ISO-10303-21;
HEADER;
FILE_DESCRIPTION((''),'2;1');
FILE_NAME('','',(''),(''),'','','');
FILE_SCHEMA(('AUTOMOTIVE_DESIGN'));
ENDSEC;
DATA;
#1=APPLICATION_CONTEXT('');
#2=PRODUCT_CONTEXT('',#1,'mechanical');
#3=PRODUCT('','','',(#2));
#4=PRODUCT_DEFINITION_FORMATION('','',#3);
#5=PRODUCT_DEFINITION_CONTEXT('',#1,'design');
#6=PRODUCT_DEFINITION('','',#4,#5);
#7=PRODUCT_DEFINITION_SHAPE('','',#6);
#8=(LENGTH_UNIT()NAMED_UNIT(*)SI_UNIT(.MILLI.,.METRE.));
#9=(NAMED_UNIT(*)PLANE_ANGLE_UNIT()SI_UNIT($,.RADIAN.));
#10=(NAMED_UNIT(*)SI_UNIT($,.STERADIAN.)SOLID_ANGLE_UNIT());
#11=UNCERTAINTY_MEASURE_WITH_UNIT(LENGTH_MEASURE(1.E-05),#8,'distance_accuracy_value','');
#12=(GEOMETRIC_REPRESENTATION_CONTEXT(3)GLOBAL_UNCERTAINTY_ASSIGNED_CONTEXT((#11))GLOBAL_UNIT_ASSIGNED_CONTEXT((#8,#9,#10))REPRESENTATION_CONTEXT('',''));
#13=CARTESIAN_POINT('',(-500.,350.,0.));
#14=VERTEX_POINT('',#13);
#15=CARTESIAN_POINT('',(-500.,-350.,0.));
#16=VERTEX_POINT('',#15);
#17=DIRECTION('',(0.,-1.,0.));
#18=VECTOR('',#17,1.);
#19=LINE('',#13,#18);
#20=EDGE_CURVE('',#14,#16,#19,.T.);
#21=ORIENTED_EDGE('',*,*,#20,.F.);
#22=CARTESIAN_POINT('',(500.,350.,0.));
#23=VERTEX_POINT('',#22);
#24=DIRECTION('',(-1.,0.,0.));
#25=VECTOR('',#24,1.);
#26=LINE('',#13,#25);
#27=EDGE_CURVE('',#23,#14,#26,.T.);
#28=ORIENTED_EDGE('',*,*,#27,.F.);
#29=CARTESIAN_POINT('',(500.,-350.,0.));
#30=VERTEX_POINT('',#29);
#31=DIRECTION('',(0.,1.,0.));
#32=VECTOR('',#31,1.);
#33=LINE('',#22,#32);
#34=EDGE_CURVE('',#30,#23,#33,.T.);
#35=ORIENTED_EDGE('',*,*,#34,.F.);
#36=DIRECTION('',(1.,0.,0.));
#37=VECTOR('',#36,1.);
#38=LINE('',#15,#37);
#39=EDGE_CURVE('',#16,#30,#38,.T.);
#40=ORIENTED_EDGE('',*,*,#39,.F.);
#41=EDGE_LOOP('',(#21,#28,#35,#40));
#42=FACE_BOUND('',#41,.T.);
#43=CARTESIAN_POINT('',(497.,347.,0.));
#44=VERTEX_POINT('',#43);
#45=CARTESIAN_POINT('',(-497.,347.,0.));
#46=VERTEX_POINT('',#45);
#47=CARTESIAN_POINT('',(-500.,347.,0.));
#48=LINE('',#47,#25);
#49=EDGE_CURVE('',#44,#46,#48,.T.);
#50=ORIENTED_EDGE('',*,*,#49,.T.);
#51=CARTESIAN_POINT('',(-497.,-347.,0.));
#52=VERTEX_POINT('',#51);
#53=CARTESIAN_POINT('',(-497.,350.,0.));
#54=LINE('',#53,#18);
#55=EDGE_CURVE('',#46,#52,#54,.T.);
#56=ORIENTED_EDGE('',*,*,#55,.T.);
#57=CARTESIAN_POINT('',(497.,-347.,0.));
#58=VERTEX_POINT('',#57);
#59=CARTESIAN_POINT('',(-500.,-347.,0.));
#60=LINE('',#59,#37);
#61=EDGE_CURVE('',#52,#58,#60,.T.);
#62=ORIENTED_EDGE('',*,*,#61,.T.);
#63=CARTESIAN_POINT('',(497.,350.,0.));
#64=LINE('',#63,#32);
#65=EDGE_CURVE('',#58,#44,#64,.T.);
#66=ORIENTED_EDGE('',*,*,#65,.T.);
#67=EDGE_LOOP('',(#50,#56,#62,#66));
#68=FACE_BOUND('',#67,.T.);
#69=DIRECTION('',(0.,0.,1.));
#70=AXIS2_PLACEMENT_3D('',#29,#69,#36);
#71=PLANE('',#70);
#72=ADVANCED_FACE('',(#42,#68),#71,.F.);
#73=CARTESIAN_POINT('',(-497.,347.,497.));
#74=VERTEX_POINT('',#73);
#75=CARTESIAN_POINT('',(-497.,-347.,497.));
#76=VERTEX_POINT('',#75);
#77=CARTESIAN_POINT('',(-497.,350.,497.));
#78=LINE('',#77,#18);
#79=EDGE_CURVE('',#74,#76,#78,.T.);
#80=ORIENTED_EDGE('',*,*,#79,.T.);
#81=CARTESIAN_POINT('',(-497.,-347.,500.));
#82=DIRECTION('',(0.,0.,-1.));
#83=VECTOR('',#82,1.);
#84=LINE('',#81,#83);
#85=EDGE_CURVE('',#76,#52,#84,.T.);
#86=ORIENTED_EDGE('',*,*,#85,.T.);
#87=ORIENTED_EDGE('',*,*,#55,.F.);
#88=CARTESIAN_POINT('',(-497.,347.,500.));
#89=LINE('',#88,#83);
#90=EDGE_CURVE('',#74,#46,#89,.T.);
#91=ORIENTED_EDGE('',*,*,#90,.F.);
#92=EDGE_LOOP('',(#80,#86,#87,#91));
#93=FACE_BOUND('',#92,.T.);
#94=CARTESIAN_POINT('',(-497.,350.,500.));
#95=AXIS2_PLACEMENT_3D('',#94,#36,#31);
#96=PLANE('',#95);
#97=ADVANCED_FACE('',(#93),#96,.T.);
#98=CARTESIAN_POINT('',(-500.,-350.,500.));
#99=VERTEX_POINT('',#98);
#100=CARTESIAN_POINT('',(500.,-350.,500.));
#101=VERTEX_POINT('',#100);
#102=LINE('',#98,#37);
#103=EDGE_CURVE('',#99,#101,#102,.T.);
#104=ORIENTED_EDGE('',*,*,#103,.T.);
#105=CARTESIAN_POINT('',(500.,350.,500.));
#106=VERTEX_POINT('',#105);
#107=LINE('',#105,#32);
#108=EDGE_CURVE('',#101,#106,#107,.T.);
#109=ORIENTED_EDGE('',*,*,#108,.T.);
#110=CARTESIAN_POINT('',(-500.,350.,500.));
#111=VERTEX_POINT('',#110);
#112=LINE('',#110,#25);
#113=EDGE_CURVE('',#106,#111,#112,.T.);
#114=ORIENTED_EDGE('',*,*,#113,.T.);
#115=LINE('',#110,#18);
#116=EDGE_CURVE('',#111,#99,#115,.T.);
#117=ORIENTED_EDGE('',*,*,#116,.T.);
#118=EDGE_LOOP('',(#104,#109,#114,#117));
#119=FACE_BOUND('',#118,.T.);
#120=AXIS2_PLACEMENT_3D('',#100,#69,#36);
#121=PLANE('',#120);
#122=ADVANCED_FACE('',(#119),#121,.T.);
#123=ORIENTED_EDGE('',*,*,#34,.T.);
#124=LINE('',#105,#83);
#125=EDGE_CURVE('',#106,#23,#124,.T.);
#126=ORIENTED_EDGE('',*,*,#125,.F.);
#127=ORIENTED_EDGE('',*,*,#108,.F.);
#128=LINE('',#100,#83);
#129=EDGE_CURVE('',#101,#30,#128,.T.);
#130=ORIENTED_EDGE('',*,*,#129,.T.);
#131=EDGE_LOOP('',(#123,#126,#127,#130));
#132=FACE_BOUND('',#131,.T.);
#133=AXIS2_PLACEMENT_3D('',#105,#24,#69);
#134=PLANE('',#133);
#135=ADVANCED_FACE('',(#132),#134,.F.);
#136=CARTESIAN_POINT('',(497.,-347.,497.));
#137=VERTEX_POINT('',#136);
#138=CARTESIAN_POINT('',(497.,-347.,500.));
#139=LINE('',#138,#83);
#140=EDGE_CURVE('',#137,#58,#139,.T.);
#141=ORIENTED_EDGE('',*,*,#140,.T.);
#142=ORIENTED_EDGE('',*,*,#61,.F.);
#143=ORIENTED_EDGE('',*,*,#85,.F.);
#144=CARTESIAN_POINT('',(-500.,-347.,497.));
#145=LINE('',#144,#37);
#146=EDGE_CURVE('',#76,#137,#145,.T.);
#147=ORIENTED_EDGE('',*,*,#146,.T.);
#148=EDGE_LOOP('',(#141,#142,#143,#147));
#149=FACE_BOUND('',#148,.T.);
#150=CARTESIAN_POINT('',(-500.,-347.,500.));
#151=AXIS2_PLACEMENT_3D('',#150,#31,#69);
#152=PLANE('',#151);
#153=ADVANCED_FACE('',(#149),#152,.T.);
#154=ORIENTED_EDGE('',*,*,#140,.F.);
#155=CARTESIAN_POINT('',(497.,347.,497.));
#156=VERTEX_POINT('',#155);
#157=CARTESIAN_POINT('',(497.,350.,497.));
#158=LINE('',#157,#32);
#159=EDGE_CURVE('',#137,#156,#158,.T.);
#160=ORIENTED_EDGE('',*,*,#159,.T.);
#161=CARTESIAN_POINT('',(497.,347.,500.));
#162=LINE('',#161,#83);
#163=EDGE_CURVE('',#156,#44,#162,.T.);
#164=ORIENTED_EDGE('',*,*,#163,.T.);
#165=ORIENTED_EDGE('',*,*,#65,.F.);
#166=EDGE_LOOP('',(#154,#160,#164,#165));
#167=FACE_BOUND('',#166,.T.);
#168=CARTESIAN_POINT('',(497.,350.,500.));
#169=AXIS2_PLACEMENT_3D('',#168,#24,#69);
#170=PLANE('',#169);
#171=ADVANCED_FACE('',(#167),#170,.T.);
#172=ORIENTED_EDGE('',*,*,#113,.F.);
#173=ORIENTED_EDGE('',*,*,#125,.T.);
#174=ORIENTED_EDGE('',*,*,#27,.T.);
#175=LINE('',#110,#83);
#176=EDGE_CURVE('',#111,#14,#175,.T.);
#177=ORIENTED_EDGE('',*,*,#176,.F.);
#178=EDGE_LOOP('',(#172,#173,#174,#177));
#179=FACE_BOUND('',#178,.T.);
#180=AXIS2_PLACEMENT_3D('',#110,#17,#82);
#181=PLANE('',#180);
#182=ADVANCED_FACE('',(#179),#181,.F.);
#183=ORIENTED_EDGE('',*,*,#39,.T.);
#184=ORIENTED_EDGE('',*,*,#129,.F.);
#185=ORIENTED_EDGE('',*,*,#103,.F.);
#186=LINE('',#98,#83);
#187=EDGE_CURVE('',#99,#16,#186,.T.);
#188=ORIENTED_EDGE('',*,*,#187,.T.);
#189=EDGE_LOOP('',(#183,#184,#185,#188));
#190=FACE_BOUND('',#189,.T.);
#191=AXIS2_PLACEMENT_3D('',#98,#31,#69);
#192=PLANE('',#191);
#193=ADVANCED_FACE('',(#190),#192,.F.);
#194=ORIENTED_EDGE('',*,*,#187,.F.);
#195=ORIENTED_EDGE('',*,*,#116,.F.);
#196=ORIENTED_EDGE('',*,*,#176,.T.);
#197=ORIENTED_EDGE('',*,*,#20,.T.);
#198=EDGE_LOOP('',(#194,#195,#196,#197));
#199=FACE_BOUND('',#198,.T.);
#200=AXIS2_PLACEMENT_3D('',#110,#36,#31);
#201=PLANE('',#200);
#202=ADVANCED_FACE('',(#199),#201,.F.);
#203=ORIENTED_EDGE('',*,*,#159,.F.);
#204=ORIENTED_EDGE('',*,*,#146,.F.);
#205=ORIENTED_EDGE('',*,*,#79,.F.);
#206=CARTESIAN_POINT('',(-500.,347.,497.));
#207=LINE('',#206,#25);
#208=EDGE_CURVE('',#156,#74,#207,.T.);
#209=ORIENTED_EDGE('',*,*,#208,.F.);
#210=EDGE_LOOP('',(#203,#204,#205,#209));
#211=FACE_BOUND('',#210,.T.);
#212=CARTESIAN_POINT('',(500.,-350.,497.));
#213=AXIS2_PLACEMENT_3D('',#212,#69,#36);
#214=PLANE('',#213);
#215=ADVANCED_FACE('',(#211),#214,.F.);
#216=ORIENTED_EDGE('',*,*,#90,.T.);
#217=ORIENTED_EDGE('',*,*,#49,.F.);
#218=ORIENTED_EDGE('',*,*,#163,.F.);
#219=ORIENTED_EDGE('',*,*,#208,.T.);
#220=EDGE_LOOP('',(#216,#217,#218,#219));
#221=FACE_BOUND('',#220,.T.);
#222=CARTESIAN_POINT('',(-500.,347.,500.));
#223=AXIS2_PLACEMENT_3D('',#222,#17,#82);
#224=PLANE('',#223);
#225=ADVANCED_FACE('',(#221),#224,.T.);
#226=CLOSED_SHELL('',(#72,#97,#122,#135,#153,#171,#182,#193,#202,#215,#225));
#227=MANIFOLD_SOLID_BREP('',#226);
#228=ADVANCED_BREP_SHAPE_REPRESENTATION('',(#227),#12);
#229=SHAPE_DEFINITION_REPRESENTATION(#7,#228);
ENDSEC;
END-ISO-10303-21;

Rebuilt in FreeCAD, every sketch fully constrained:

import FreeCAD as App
import Part
import Sketcher
from FreeCAD import Vector
Q = App.Units.Quantity


def faces_at(feature, points):
    """Names of the faces that lie closest to the given points."""
    faces = feature.Shape.Faces
    near = lambda p: min(range(len(faces)), key=lambda i: faces[i].distToShape(Part.Vertex(*p))[0])
    return sorted({f"Face{near(p) + 1}" for p in points})

doc = App.newDocument("Part")
body = doc.addObject("PartDesign::Body", "Body")

# Sketch on XY plane
sketch1 = body.newObject("Sketcher::SketchObject", "Sketch")
sketch1.AttachmentSupport = (doc.getObject("XY_Plane"), [""])
sketch1.MapMode = "FlatFace"
sketch1.addGeometry(Part.LineSegment(Vector(-500, 350, 0), Vector(-500, -350, 0)), False)
sketch1.addGeometry(Part.LineSegment(Vector(-500, -350, 0), Vector(500, -350, 0)), False)
sketch1.addGeometry(Part.LineSegment(Vector(500, -350, 0), Vector(500, 350, 0)), False)
sketch1.addGeometry(Part.LineSegment(Vector(500, 350, 0), Vector(-500, 350, 0)), False)
sketch1.addConstraint(Sketcher.Constraint("Coincident", 0, 2, 1, 1))
sketch1.addConstraint(Sketcher.Constraint("Coincident", 1, 2, 2, 1))
sketch1.addConstraint(Sketcher.Constraint("Coincident", 2, 2, 3, 1))
sketch1.addConstraint(Sketcher.Constraint("Coincident", 3, 2, 0, 1))
sketch1.addConstraint(Sketcher.Constraint("Vertical", 0))
sketch1.addConstraint(Sketcher.Constraint("Horizontal", 1))
sketch1.addConstraint(Sketcher.Constraint("Vertical", 2))
sketch1.addConstraint(Sketcher.Constraint("Horizontal", 3))
sketch1.addConstraint(Sketcher.Constraint("Symmetric", 0, 2, 2, 2, -1, 1))
sketch1.addConstraint(Sketcher.Constraint("DistanceX", 1, 1, 1, 2, Q("1000 mm")))
sketch1.addConstraint(Sketcher.Constraint("DistanceY", 0, 2, 0, 1, Q("700 mm")))
pad1 = body.newObject("PartDesign::Pad", "Pad")
pad1.Profile = sketch1
pad1.Length = 500
doc.recompute()

thickness = body.newObject("PartDesign::Thickness", "Thickness")
thickness.Base = (pad1, faces_at(pad1, [(0, 0, 0)]))
thickness.Value = 3
thickness.Reversed = True
thickness.Join = "Intersection"

doc.recompute()
